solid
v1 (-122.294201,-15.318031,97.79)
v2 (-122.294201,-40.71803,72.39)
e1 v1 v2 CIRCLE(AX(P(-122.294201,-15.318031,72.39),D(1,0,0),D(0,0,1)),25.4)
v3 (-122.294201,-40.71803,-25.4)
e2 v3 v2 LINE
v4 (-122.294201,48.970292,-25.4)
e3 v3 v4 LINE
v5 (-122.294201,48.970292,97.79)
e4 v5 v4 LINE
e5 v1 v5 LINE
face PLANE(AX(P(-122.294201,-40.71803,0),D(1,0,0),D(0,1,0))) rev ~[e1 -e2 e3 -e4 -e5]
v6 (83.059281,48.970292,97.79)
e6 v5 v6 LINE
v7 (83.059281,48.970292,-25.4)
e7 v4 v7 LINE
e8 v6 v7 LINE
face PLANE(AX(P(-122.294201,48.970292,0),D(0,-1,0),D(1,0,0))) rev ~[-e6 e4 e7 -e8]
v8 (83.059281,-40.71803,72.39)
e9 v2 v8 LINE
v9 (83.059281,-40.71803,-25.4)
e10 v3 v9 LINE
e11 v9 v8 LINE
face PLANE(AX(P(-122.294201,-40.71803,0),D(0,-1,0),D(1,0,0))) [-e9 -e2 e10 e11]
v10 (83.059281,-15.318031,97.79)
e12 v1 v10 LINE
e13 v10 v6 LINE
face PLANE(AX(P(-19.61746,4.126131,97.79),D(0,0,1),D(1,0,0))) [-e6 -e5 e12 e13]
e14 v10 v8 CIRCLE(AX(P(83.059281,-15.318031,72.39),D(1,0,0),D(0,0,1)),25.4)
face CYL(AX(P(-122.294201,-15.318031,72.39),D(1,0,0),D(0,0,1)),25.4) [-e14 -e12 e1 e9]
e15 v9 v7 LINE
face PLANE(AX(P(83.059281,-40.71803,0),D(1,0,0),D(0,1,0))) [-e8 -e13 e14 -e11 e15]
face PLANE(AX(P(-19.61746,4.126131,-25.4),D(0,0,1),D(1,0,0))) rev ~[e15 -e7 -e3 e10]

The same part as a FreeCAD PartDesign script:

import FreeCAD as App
import Part
import Sketcher

V = App.Vector
Q = App.Units.Quantity


def edges_at(feature, points):
    """Names of the edges that pass closest to the given points."""
    edges = feature.Shape.Edges
    near = lambda p: min(range(len(edges)), key=lambda i: edges[i].distToShape(Part.Vertex(*p))[0])
    return sorted({f"Edge{near(p) + 1}" for p in points})


def add_polygon(sketch, points):
    """Adds a closed chain of lines whose ends are joined by coincident constraints."""
    first, n = sketch.GeometryCount, len(points)
    for a, b in zip(points, points[1:] + points[:1]):
        sketch.addGeometry(Part.LineSegment(App.Vector(*a, 0), App.Vector(*b, 0)), False)
    for i in range(n):
        sketch.addConstraint(Sketcher.Constraint("Coincident", first + i, 2, first + (i + 1) % n, 1))

doc = App.newDocument("Part")
body = doc.addObject("PartDesign::Body", "Body")

# Sketch on XY plane
sketch1 = body.newObject("Sketcher::SketchObject", "Sketch")
sketch1.AttachmentSupport = (doc.getObject("XY_Plane"), [""])
sketch1.MapMode = "FlatFace"
add_polygon(sketch1, [(-122, 49), (-122, -41), (83, -41), (83, 49)])  # lines 0-3
sketch1.addConstraint([
    Sketcher.Constraint("Vertical", 0),
    Sketcher.Constraint("Horizontal", 1),
    Sketcher.Constraint("Vertical", 2),
    Sketcher.Constraint("Horizontal", 3),
    Sketcher.Constraint("DistanceX", 0, 2, -1, 1, 122.294201),
    Sketcher.Constraint("DistanceX", 1, 1, 1, 2, 205.353483),
    Sketcher.Constraint("DistanceY", 0, 2, 0, 1, 89.688323),
    Sketcher.Constraint("DistanceY", 0, 2, -1, 1, 40.71803),
])
pad1 = body.newObject("PartDesign::Pad", "Pad")
pad1.Profile = sketch1
pad1.Type = "TwoLengths"
pad1.Length = Q("3.85 in")
pad1.Length2 = Q("1 in")
doc.recompute()

fillet = body.newObject("PartDesign::Fillet", "Fillet")
fillet.Base = (pad1, edges_at(pad1, [(-19.617, -40.718, 97.79)]))
fillet.Radius = Q("1 in")

doc.recompute()
